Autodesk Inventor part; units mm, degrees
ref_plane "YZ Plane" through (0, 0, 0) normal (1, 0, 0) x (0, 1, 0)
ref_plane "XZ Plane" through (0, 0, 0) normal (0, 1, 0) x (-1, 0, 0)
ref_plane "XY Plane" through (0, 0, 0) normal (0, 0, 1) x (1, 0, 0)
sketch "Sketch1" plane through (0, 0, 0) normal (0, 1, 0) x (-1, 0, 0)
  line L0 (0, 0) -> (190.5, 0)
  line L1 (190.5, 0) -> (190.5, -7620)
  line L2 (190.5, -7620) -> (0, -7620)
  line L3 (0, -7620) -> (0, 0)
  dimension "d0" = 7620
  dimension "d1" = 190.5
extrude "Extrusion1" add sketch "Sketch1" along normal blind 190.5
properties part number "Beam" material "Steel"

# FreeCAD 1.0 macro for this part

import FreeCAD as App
import Part
import Sketcher

V = App.Vector
Q = App.Units.Quantity

doc = App.newDocument("Part")
body = doc.addObject("PartDesign::Body", "Body")

# Sketch on XZ plane
sketch1 = doc.addObject("Sketcher::SketchObject", "Sketch")
body.addObject(sketch1)
sketch1.AttachmentSupport = (doc.XZ_Plane, [""])
sketch1.MapMode = "FlatFace"
sketch1.addGeometry([
    Part.LineSegment(V(-190.5, 0, 0), V(0, 0, 0)),
    Part.LineSegment(V(0, 0, 0), V(0, -7620, 0)),
    Part.LineSegment(V(0, -7620, 0), V(-190.5, -7620, 0)),
    Part.LineSegment(V(-190.5, -7620, 0), V(-190.5, 0, 0)),
], False)
sketch1.addConstraint([
    Sketcher.Constraint("Coincident", 0, 2, 1, 1),
    Sketcher.Constraint("Coincident", 1, 2, 2, 1),
    Sketcher.Constraint("Coincident", 2, 2, 3, 1),
    Sketcher.Constraint("Coincident", 3, 2, 0, 1),
    Sketcher.Constraint("Horizontal", 0),
    Sketcher.Constraint("Vertical", 1),
    Sketcher.Constraint("Horizontal", 2),
    Sketcher.Constraint("Vertical", 3),
    Sketcher.Constraint("Coincident", 0, 2, -1, 1),
    Sketcher.Constraint("DistanceY", 1, 2, 1, 1, Q("300 in")),
    Sketcher.Constraint("DistanceX", 0, 1, 0, 2, Q("7.5 in")),
])
pad1 = doc.addObject("PartDesign::Pad", "Pad")
body.addObject(pad1)
pad1.Profile = sketch1
pad1.Length = Q("7.5 in")
pad1.Reversed = True

doc.recompute()
